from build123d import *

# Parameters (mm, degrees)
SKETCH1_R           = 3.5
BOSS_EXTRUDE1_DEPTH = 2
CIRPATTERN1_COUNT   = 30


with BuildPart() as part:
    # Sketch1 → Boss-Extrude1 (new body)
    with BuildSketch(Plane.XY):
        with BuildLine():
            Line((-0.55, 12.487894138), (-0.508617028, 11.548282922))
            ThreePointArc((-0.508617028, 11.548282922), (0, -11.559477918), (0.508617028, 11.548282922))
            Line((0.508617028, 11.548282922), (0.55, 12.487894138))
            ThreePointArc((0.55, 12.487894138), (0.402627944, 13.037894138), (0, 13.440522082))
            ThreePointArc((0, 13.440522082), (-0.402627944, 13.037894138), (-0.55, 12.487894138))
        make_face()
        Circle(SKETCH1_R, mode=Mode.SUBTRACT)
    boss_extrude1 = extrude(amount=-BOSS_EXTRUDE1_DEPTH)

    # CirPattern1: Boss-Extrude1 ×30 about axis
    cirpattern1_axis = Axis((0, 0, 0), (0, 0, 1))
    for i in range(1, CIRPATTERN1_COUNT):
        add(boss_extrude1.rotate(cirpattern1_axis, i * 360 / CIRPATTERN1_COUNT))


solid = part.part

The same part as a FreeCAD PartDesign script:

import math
import FreeCAD as App
import Part
import Sketcher

V = App.Vector
Q = App.Units.Quantity

doc = App.newDocument("Part")
body = doc.addObject("PartDesign::Body", "Body")

# Sketch on XY plane
sketch1 = body.newObject("Sketcher::SketchObject", "Sketch")
sketch1.AttachmentSupport = (doc.getObject("XY_Plane"), [""])
sketch1.MapMode = "FlatFace"
sketch1.addGeometry([
    Part.LineSegment(V(-0.55, 12.487894, 0), V(-0.508617, 11.548283, 0)),  # 0
    Part.ArcOfCircle(Part.Circle(V(0, 0, 0), V(0, 0, 1), 11.559478), math.radians(92.521828), math.radians(447.478172)),  # 1
    Part.LineSegment(V(0.508617, 11.548283, 0), V(0.55, 12.487894, 0)),  # 2
    Part.ArcOfCircle(Part.Circle(V(-0.55, 12.487894, 0), V(0, 0, 1), 1.1), math.radians(0), math.radians(60)),  # 3
    Part.ArcOfCircle(Part.Circle(V(0.55, 12.487894, 0), V(0, 0, 1), 1.1), math.radians(120), math.radians(180)),  # 4
    Part.Circle(V(0, 0, 0), V(0, 0, 1), 3.5),  # 5
], False)
sketch1.addConstraint([
    Sketcher.Constraint("Coincident", 0, 2, 1, 1),
    Sketcher.Constraint("Coincident", 1, 2, 2, 1),
    Sketcher.Constraint("Coincident", 2, 2, 3, 1),
    Sketcher.Constraint("Coincident", 3, 2, 4, 1),
    Sketcher.Constraint("Coincident", 4, 2, 0, 1),
    Sketcher.Constraint("Coincident", 1, 3, -1, 1),
    Sketcher.Constraint("Coincident", 5, 3, -1, 1),
    Sketcher.Constraint("Coincident", 2, 2, 4, 3),
    Sketcher.Constraint("Coincident", 4, 2, 3, 3),
    Sketcher.Constraint("Symmetric", 3, 3, 4, 3, -2),
    Sketcher.Constraint("Horizontal", 0, 2, 1, 2),
    Sketcher.Constraint("Diameter", 5, Q("7 mm")),
    Sketcher.Constraint("Radius", 3, Q("1.1 mm")),
    Sketcher.Constraint("Radius", 1, Q("11.559478 mm")),
    Sketcher.Constraint("DistanceY", 0, 2, 3, 3, Q("0.939611 mm")),
    Sketcher.Constraint("Distance", 0, Q("0.940522 mm")),
])
pad1 = body.newObject("PartDesign::Pad", "Pad")
pad1.Profile = sketch1
pad1.Length = 2
pad1.Reversed = True
doc.recompute()

polarpattern = body.newObject("PartDesign::PolarPattern", "PolarPattern")
polarpattern.Originals = [pad1]
polarpattern.Axis = (doc.getObject("Z_Axis"), [""])
polarpattern.Angle = 360
polarpattern.Occurrences = 30
body.Tip = polarpattern

doc.recompute()
